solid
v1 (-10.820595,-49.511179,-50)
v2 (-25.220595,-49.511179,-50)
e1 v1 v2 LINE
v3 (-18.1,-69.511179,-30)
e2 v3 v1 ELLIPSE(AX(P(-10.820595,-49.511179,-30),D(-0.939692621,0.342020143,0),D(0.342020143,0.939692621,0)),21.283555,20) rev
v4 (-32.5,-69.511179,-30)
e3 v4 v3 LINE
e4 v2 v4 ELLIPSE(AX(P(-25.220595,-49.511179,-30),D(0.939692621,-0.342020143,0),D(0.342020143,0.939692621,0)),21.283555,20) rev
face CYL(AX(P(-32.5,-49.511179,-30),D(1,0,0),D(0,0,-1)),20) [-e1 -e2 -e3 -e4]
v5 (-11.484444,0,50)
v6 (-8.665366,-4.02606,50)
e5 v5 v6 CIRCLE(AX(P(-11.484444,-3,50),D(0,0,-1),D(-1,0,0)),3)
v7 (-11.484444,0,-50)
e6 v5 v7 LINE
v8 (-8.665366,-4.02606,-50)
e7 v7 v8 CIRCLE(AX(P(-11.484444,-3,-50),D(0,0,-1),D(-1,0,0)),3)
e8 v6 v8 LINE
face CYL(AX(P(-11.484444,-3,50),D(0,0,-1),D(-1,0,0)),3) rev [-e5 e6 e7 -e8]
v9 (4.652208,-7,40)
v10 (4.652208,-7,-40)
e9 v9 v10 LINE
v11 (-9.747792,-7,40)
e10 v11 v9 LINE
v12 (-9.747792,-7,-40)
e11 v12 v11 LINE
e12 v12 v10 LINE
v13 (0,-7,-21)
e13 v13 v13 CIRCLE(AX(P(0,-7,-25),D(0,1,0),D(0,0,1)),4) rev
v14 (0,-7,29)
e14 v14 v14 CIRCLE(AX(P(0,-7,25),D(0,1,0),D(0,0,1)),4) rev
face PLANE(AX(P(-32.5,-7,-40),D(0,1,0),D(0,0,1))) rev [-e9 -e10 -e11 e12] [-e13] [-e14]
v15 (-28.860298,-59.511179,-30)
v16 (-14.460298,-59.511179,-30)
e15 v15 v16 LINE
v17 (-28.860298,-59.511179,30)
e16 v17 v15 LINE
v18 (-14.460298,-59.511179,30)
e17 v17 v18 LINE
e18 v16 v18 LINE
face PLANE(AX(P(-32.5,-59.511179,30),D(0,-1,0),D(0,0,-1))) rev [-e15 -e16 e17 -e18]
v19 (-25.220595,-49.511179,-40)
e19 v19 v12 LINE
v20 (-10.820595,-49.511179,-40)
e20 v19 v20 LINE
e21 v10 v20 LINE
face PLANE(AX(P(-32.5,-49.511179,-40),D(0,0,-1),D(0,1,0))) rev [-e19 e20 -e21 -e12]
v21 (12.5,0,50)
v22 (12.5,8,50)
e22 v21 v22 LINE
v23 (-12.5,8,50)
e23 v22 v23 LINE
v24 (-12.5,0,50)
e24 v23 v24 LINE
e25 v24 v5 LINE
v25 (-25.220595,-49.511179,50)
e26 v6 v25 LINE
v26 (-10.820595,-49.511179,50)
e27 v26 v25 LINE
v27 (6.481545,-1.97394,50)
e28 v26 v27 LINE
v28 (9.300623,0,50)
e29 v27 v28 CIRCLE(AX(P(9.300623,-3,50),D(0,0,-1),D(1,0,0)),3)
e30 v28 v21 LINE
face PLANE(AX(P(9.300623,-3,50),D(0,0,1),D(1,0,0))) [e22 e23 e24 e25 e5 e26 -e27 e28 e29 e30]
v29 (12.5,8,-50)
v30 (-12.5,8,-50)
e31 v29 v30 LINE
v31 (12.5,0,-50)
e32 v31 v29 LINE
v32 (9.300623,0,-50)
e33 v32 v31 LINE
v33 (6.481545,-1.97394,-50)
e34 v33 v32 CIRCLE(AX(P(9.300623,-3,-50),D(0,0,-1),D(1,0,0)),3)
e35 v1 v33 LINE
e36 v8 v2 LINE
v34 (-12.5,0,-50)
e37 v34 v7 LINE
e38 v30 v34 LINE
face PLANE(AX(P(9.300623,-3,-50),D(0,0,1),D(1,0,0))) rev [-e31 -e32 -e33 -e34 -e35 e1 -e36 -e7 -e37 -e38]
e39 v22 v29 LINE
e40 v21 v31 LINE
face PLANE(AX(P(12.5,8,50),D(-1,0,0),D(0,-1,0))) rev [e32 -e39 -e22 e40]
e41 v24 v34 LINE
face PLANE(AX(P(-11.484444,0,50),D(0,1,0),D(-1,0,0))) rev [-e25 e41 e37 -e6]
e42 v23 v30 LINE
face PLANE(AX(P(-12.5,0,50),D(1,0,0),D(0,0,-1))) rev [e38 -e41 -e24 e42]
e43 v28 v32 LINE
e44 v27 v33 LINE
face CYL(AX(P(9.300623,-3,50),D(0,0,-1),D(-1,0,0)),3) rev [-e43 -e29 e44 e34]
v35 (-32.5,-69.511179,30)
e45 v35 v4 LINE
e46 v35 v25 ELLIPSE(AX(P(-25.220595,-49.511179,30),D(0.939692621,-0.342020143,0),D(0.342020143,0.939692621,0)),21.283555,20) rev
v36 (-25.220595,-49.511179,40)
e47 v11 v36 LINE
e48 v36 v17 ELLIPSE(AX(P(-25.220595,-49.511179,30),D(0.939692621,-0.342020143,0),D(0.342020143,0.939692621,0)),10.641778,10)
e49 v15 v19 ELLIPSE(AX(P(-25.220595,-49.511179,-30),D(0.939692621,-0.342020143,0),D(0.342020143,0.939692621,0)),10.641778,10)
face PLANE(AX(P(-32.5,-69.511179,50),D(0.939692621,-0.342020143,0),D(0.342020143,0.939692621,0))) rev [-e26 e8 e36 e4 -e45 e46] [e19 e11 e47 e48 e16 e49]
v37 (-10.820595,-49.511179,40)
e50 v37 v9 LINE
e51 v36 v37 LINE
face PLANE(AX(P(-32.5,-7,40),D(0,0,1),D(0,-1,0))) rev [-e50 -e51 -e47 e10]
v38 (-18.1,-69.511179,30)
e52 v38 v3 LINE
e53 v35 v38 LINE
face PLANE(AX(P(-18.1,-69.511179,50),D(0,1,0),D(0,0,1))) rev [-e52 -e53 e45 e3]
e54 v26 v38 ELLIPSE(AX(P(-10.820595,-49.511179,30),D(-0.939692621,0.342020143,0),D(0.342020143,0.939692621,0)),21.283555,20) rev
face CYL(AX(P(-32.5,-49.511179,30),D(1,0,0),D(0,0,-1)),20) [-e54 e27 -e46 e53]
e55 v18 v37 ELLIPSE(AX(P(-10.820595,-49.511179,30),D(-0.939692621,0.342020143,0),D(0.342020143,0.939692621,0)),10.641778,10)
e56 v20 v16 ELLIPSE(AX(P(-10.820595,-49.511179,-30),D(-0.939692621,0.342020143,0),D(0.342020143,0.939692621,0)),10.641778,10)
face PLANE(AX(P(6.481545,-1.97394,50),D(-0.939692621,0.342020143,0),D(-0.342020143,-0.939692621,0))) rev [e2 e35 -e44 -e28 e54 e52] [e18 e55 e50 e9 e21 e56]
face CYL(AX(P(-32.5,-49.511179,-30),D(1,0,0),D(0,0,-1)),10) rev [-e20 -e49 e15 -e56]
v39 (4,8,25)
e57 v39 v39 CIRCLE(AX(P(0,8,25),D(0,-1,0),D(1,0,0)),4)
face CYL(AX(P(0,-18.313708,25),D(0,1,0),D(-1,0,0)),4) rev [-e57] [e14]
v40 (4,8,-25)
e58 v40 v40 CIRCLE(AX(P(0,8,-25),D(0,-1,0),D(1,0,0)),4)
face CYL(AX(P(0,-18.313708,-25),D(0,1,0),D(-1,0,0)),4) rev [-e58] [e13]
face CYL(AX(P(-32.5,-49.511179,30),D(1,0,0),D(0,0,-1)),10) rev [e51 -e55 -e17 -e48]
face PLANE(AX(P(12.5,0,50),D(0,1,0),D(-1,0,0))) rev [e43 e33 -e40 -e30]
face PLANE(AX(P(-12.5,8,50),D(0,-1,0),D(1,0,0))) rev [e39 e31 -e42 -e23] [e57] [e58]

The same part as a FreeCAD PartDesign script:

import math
import FreeCAD as App
import Part
import Sketcher
from FreeCAD import Vector
Q = App.Units.Quantity

doc = App.newDocument("Part")
body = doc.addObject("PartDesign::Body", "Body")

# Sketch on XY plane
sketch1 = doc.addObject("Sketcher::SketchObject", "Sketch")
body.addObject(sketch1)
sketch1.AttachmentSupport = (doc.XY_Plane, [""])
sketch1.MapMode = "FlatFace"
sketch1.addGeometry([
    Part.LineSegment(Vector(-12.5, 0, 0), Vector(-11.5, 0, 0)),  # 0
    Part.ArcOfCircle(Part.Circle(Vector(-11.5, -3, 0), Vector(0, 0, 1), 3), math.radians(-20), math.radians(90)),  # 1
    Part.LineSegment(Vector(-8.7, -4, 0), Vector(-32.5, -69.5, 0)),  # 2
    Part.LineSegment(Vector(-32.5, -69.5, 0), Vector(-18.1, -69.5, 0)),  # 3
    Part.LineSegment(Vector(-18.1, -69.5, 0), Vector(6.5, -2, 0)),  # 4
    Part.ArcOfCircle(Part.Circle(Vector(9.3, -3, 0), Vector(0, 0, 1), 3), math.radians(90), math.radians(160)),  # 5
    Part.LineSegment(Vector(9.3, 0, 0), Vector(12.5, 0, 0)),  # 6
    Part.LineSegment(Vector(12.5, 0, 0), Vector(12.5, 8, 0)),  # 7
    Part.LineSegment(Vector(12.5, 8, 0), Vector(-12.5, 8, 0)),  # 8
    Part.LineSegment(Vector(-12.5, 8, 0), Vector(-12.5, 0, 0)),  # 9
], False)
sketch1.addConstraint([
    Sketcher.Constraint("Tangent", 0, 2, 1, 2),
    Sketcher.Constraint("Tangent", 1, 1, 2, 1),
    Sketcher.Constraint("Coincident", 2, 2, 3, 1),
    Sketcher.Constraint("Coincident", 3, 2, 4, 1),
    Sketcher.Constraint("Tangent", 4, 2, 5, 2),
    Sketcher.Constraint("Tangent", 5, 1, 6, 1),
    Sketcher.Constraint("Coincident", 6, 2, 7, 1),
    Sketcher.Constraint("Coincident", 7, 2, 8, 1),
    Sketcher.Constraint("Coincident", 8, 2, 9, 1),
    Sketcher.Constraint("Coincident", 9, 2, 0, 1),
    Sketcher.Constraint("Horizontal", 0),
    Sketcher.Constraint("Horizontal", 3),
    Sketcher.Constraint("Horizontal", 6),
    Sketcher.Constraint("Vertical", 7),
    Sketcher.Constraint("Horizontal", 8),
    Sketcher.Constraint("Vertical", 9),
    Sketcher.Constraint("Equal", 1, 5),
    Sketcher.Constraint("Symmetric", 6, 2, 9, 2, -1, 1),
    Sketcher.Constraint("PointOnObject", 0, 2, -1),
    Sketcher.Constraint("Parallel", 2, 4),
    Sketcher.Constraint("Radius", 1, 3.0),
    Sketcher.Constraint("DistanceX", 8, 2, 8, 1, 25.0),
    Sketcher.Constraint("DistanceY", 7, 1, 7, 2, 8.0),
    Sketcher.Constraint("Angle", 2, Q("-110 deg")),
    Sketcher.Constraint("DistanceX", 3, 1, 3, 2, 14.4),
    Sketcher.Constraint("DistanceX", 2, 2, -1, 1, 32.5),
    Sketcher.Constraint("Distance", 4, 71.871629),
])
pad1 = doc.addObject("PartDesign::Pad", "Pad")
body.addObject(pad1)
pad1.Profile = sketch1
pad1.Length = 100
pad1.Midplane = True

# Sketch on YZ plane
sketch2 = doc.addObject("Sketcher::SketchObject", "Sketch001")
body.addObject(sketch2)
sketch2.AttachmentSupport = (doc.YZ_Plane, [""])
sketch2.MapMode = "FlatFace"
sketch2.addGeometry([
    Part.LineSegment(Vector(-7, -40, 0), Vector(-7, 40, 0)),  # 0
    Part.LineSegment(Vector(-7, 40, 0), Vector(-50, 40, 0)),  # 1
    Part.ArcOfCircle(Part.Circle(Vector(-50, 30, 0), Vector(0, 0, 1), 10), math.radians(90), math.radians(180)),  # 2
    Part.LineSegment(Vector(-60, 30, 0), Vector(-60, -30, 0)),  # 3
    Part.ArcOfCircle(Part.Circle(Vector(-50, -30, 0), Vector(0, 0, 1), 10), math.radians(180), math.radians(270)),  # 4
    Part.LineSegment(Vector(-50, -40, 0), Vector(-7, -40, 0)),  # 5
    Part.LineSegment(Vector(-50, 50, 0), Vector(-70, 50, 0)),  # 6
    Part.LineSegment(Vector(-70, 50, 0), Vector(-70, 30, 0)),  # 7
    Part.ArcOfCircle(Part.Circle(Vector(-50, 30, 0), Vector(0, 0, 1), 20), math.radians(90), math.radians(180)),  # 8
    Part.LineSegment(Vector(-70, -50, 0), Vector(-50, -50, 0)),  # 9
    Part.ArcOfCircle(Part.Circle(Vector(-50, -30, 0), Vector(0, 0, 1), 20), math.radians(180), math.radians(270)),  # 10
    Part.LineSegment(Vector(-70, -30, 0), Vector(-70, -50, 0)),  # 11
], False)
sketch2.addConstraint([
    Sketcher.Constraint("Coincident", 0, 2, 1, 1),
    Sketcher.Constraint("Tangent", 1, 2, 2, 1),
    Sketcher.Constraint("Tangent", 2, 2, 3, 1),
    Sketcher.Constraint("Tangent", 3, 2, 4, 1),
    Sketcher.Constraint("Tangent", 4, 2, 5, 1),
    Sketcher.Constraint("Coincident", 5, 2, 0, 1),
    Sketcher.Constraint("Coincident", 6, 2, 7, 1),
    Sketcher.Constraint("Tangent", 7, 2, 8, 2),
    Sketcher.Constraint("Tangent", 8, 1, 6, 1),
    Sketcher.Constraint("Tangent", 9, 2, 10, 2),
    Sketcher.Constraint("Tangent", 10, 1, 11, 1),
    Sketcher.Constraint("Coincident", 11, 2, 9, 1),
    Sketcher.Constraint("Vertical", 0),
    Sketcher.Constraint("Horizontal", 1),
    Sketcher.Constraint("Vertical", 3),
    Sketcher.Constraint("Horizontal", 5),
    Sketcher.Constraint("Horizontal", 6),
    Sketcher.Constraint("Vertical", 7),
    Sketcher.Constraint("Horizontal", 9),
    Sketcher.Constraint("Vertical", 11),
    Sketcher.Constraint("Coincident", 8, 3, 2, 3),
    Sketcher.Constraint("Coincident", 10, 3, 4, 3),
    Sketcher.Constraint("Equal", 2, 4),
    Sketcher.Constraint("Equal", 8, 10),
    Sketcher.Constraint("Radius", 2, 10.0),
    Sketcher.Constraint("Radius", 8, 20.0),
    Sketcher.Constraint("DistanceY", 0, 1, 0, 2, 80.0),
    Sketcher.Constraint("DistanceY", -1, 1, 2, 3, 30.0),
    Sketcher.Constraint("DistanceX", 0, 2, -1, 1, 7.0),
    Sketcher.Constraint("DistanceX", 1, 2, 1, 1, 42.511179),
])
pocket1 = doc.addObject("PartDesign::Pocket", "Pocket")
body.addObject(pocket1)
pocket1.Profile = sketch2
pocket1.Type = "ThroughAll"
pocket1.Midplane = True

# Sketch on XZ plane
sketch3 = doc.addObject("Sketcher::SketchObject", "Sketch002")
body.addObject(sketch3)
sketch3.AttachmentSupport = (doc.XZ_Plane, [""])
sketch3.MapMode = "FlatFace"
sketch3.AttachmentOffset = App.Placement(Vector(0, 0, -8), App.Rotation())
sketch3.addGeometry([
    Part.Circle(Vector(0, 25, 0), Vector(0, 0, 1), 4),
    Part.Circle(Vector(0, -25, 0), Vector(0, 0, 1), 4),
], False)
sketch3.addConstraint([
    Sketcher.Constraint("Equal", 0, 1),
    Sketcher.Constraint("Symmetric", 0, 3, 1, 3, -1, 1),
    Sketcher.Constraint("PointOnObject", 0, 3, -2),
    Sketcher.Constraint("Diameter", 0, 8.0),
    Sketcher.Constraint("DistanceY", -1, 1, 0, 3, 25.0),
])
pocket2 = doc.addObject("PartDesign::Pocket", "Pocket001")
body.addObject(pocket2)
pocket2.Profile = sketch3
pocket2.Type = "ThroughAll"
pocket2.Midplane = True

doc.recompute()
